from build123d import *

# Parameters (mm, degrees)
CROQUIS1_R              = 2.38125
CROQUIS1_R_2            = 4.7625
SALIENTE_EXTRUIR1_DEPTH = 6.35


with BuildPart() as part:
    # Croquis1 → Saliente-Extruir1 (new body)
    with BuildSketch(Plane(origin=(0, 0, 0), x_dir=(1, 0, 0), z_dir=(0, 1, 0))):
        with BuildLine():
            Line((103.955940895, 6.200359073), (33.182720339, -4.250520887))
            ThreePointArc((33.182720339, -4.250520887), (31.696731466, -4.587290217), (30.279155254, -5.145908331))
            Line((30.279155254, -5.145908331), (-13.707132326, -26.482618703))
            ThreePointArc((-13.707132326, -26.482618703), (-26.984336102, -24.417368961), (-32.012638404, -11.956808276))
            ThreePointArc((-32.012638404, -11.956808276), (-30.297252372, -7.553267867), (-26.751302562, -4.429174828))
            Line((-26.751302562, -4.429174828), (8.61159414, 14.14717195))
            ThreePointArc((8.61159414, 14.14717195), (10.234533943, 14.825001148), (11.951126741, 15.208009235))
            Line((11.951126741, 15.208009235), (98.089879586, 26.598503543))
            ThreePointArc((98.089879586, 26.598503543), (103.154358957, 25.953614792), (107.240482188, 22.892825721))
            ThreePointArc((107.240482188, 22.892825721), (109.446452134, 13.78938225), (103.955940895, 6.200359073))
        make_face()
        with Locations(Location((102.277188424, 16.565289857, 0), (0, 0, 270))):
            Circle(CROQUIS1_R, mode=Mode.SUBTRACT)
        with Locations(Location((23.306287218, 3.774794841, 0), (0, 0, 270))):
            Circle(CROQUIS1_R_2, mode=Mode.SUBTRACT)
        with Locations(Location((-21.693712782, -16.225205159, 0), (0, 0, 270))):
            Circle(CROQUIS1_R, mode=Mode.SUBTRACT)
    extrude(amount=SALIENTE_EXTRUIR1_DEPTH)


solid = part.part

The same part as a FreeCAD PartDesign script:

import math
import FreeCAD as App
import Part
import Sketcher
Q = App.Units.Quantity

doc = App.newDocument("Part")
body = doc.addObject("PartDesign::Body", "Body")

# Sketch on XZ plane
sketch1 = body.newObject("Sketcher::SketchObject", "Sketch")
sketch1.AttachmentSupport = (doc.getObject("XZ_Plane"), [""])
sketch1.MapMode = "FlatFace"
sketch1.addGeometry(Part.LineSegment(App.Vector(33.18272, 4.250521, 0), App.Vector(103.955941, -6.200359, 0)), False)
sketch1.addGeometry(Part.ArcOfCircle(Part.Circle(App.Vector(98.471493, -15.948902, 0), App.Vector(0, 0, 1), 11.185404), math.radians(-38.374745), math.radians(60.638261)), False)
sketch1.addGeometry(Part.ArcOfCircle(Part.Circle(App.Vector(99.40081, -16.684803, 0), App.Vector(0, 0, 1), 10), math.radians(-97.532762), math.radians(-38.374745)), False)
sketch1.addGeometry(Part.LineSegment(App.Vector(98.08988, -26.598504, 0), App.Vector(11.951127, -15.208009, 0)), False)
sketch1.addGeometry(Part.ArcOfCircle(Part.Circle(App.Vector(13.262058, -5.294309, 0), App.Vector(0, 0, 1), 10), math.radians(-117.713222), math.radians(-97.532762)), False)
sketch1.addGeometry(Part.LineSegment(App.Vector(8.611594, -14.147172, 0), App.Vector(-26.751303, 4.429175, 0)), False)
sketch1.addGeometry(Part.ArcOfCircle(Part.Circle(App.Vector(-22.100839, 13.282038, 0), App.Vector(0, 0, 1), 10), math.radians(-172.384589), math.radians(-117.713222)), False)
sketch1.addGeometry(Part.ArcOfCircle(Part.Circle(App.Vector(-18.527345, 13.759822, 0), App.Vector(0, 0, 1), 13.605293), math.radians(69.250093), math.radians(187.615411)), False)
sketch1.addGeometry(Part.LineSegment(App.Vector(-13.707132, 26.482619, 0), App.Vector(30.279155, 5.145908, 0)), False)
sketch1.addGeometry(Part.ArcOfCircle(Part.Circle(App.Vector(34.643551, 14.143244, 0), App.Vector(0, 0, 1), 10), math.radians(-115.876929), math.radians(-98.4)), False)
sketch1.addGeometry(Part.Circle(App.Vector(-21.693713, 16.225205, 0), App.Vector(0, 0, 1), 2.38125), False)
sketch1.addGeometry(Part.Circle(App.Vector(102.277188, -16.56529, 0), App.Vector(0, 0, 1), 2.38125), False)
sketch1.addGeometry(Part.Circle(App.Vector(23.306287, -3.774795, 0), App.Vector(0, 0, 1), 4.7625), False)
sketch1.addConstraint(Sketcher.Constraint("Coincident", 0, 2, 1, 2))
sketch1.addConstraint(Sketcher.Constraint("Coincident", 1, 1, 2, 2))
sketch1.addConstraint(Sketcher.Constraint("Coincident", 2, 1, 3, 1))
sketch1.addConstraint(Sketcher.Constraint("Coincident", 3, 2, 4, 2))
sketch1.addConstraint(Sketcher.Constraint("Coincident", 4, 1, 5, 1))
sketch1.addConstraint(Sketcher.Constraint("Coincident", 5, 2, 6, 2))
sketch1.addConstraint(Sketcher.Constraint("Coincident", 6, 1, 7, 2))
sketch1.addConstraint(Sketcher.Constraint("Coincident", 7, 1, 8, 1))
sketch1.addConstraint(Sketcher.Constraint("Coincident", 8, 2, 9, 1))
sketch1.addConstraint(Sketcher.Constraint("Coincident", 9, 2, 0, 1))
sketch1.addConstraint(Sketcher.Constraint("Diameter", 10, Q("0.1875 in")))
sketch1.addConstraint(Sketcher.Constraint("Diameter", 11, Q("0.1875 in")))
sketch1.addConstraint(Sketcher.Constraint("Diameter", 12, Q("0.375 in")))
sketch1.addConstraint(Sketcher.Constraint("Radius", 2, Q("10 mm")))
sketch1.addConstraint(Sketcher.Constraint("Radius", 4, Q("10 mm")))
sketch1.addConstraint(Sketcher.Constraint("Radius", 6, Q("10 mm")))
sketch1.addConstraint(Sketcher.Constraint("Radius", 9, Q("10 mm")))
sketch1.addConstraint(Sketcher.Constraint("Radius", 1, Q("11.185404 mm")))
sketch1.addConstraint(Sketcher.Constraint("Radius", 7, Q("13.605293 mm")))
sketch1.addConstraint(Sketcher.Constraint("DistanceY", 1, 3, -1, 1, Q("15.948902 mm")))
sketch1.addConstraint(Sketcher.Constraint("DistanceY", 2, 3, 1, 3, Q("0.735901 mm")))
sketch1.addConstraint(Sketcher.Constraint("DistanceX", 10, 3, 12, 3, Q("45 mm")))
sketch1.addConstraint(Sketcher.Constraint("DistanceY", 12, 3, 10, 3, Q("20 mm")))
sketch1.addConstraint(Sketcher.Constraint("DistanceY", 2, 1, 2, 3, Q("9.913701 mm")))
sketch1.addConstraint(Sketcher.Constraint("DistanceY", 3, 2, 4, 3, Q("9.913701 mm")))
sketch1.addConstraint(Sketcher.Constraint("DistanceX", 6, 1, 6, 3, Q("9.911799 mm")))
sketch1.addConstraint(Sketcher.Constraint("Distance", 5, Q("39.945151 mm")))
sketch1.addConstraint(Sketcher.Constraint("DistanceX", -1, 1, 2, 3, Q("99.40081 mm")))
sketch1.addConstraint(Sketcher.Constraint("DistanceY", 4, 3, -1, 1, Q("5.294309 mm")))
sketch1.addConstraint(Sketcher.Constraint("DistanceX", 6, 3, -1, 1, Q("22.100839 mm")))
sketch1.addConstraint(Sketcher.Constraint("DistanceY", -1, 1, 6, 3, Q("13.282038 mm")))
sketch1.addConstraint(Sketcher.Constraint("DistanceX", -1, 1, 9, 3, Q("34.643551 mm")))
sketch1.addConstraint(Sketcher.Constraint("DistanceX", -1, 1, 11, 3, Q("102.277188 mm")))
sketch1.addConstraint(Sketcher.Constraint("DistanceY", 11, 3, -1, 1, Q("16.56529 mm")))
sketch1.addConstraint(Sketcher.Constraint("DistanceX", -1, 1, 0, 2, Q("103.955941 mm")))
sketch1.addConstraint(Sketcher.Constraint("DistanceY", 4, 1, -1, 1, Q("14.147172 mm")))
sketch1.addConstraint(Sketcher.Constraint("DistanceY", -1, 1, 7, 1, Q("26.482619 mm")))
sketch1.addConstraint(Sketcher.Constraint("DistanceY", -1, 1, 8, 2, Q("5.145908 mm")))
sketch1.addConstraint(Sketcher.Constraint("DistanceX", -1, 1, 9, 2, Q("33.18272 mm")))
sketch1.addConstraint(Sketcher.Constraint("DistanceY", -1, 1, 9, 2, Q("4.250521 mm")))
sketch1.addConstraint(Sketcher.Constraint("DistanceY", 4, 3, 7, 3, Q("19.054131 mm")))
sketch1.addConstraint(Sketcher.Constraint("DistanceX", 10, 3, 4, 3, Q("34.95577 mm")))
sketch1.addConstraint(Sketcher.Constraint("DistanceY", 9, 3, 10, 3, Q("2.081961 mm")))
sketch1.addConstraint(Sketcher.Constraint("DistanceX", 4, 3, 11, 3, Q("89.015131 mm")))
sketch1.addConstraint(Sketcher.Constraint("DistanceX", 2, 3, 1, 1, Q("7.839672 mm")))
pad1 = body.newObject("PartDesign::Pad", "Pad")
pad1.Profile = sketch1
pad1.Length = Q("0.25 in")
pad1.Reversed = True

doc.recompute()
